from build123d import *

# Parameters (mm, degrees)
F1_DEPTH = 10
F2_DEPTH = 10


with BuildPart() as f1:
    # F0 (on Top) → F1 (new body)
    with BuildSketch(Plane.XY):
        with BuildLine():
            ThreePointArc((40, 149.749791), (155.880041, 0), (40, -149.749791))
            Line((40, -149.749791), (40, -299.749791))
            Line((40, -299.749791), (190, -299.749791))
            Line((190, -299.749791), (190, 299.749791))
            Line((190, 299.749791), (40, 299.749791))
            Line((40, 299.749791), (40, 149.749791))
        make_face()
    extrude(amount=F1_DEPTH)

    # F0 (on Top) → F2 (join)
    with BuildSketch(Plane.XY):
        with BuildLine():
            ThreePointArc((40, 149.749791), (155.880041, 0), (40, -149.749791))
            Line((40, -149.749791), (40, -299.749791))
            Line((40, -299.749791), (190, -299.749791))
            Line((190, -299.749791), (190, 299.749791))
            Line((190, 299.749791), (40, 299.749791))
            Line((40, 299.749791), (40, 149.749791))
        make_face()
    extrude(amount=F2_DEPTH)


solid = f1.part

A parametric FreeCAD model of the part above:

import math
import FreeCAD as App
import Part
import Sketcher
from FreeCAD import Vector

doc = App.newDocument("Part")
body = doc.addObject("PartDesign::Body", "Body")

# Sketch on XY plane
sketch1 = body.newObject("Sketcher::SketchObject", "Sketch")
sketch1.AttachmentSupport = (doc.getObject("XY_Plane"), [""])
sketch1.MapMode = "FlatFace"
sketch1.addGeometry([
    Part.ArcOfCircle(Part.Circle(Vector(1, 0, 0), Vector(0, 0, 1), 155), math.radians(-75), math.radians(75)),  # 0
    Part.LineSegment(Vector(40, -150, 0), Vector(40, -300, 0)),  # 1
    Part.LineSegment(Vector(40, -300, 0), Vector(190, -300, 0)),  # 2
    Part.LineSegment(Vector(190, -300, 0), Vector(190, 300, 0)),  # 3
    Part.LineSegment(Vector(190, 300, 0), Vector(40, 300, 0)),  # 4
    Part.LineSegment(Vector(40, 300, 0), Vector(40, 150, 0)),  # 5
], False)
sketch1.addConstraint([
    Sketcher.Constraint("Coincident", 0, 1, 1, 1),
    Sketcher.Constraint("Coincident", 1, 2, 2, 1),
    Sketcher.Constraint("Coincident", 2, 2, 3, 1),
    Sketcher.Constraint("Coincident", 3, 2, 4, 1),
    Sketcher.Constraint("Coincident", 4, 2, 5, 1),
    Sketcher.Constraint("Coincident", 5, 2, 0, 2),
    Sketcher.Constraint("Vertical", 1),
    Sketcher.Constraint("Horizontal", 2),
    Sketcher.Constraint("Vertical", 3),
    Sketcher.Constraint("Horizontal", 4),
    Sketcher.Constraint("Vertical", 5),
    Sketcher.Constraint("Symmetric", 1, 2, 4, 2, -1),
    Sketcher.Constraint("PointOnObject", 0, 3, -1),
    Sketcher.Constraint("Equal", 4, 1),
    Sketcher.Constraint("DistanceX", 2, 1, 2, 2, 150.0),
    Sketcher.Constraint("DistanceX", -1, 1, 0, 1, 40.0),
    Sketcher.Constraint("Radius", 0, 154.699565),
    Sketcher.Constraint("DistanceY", 3, 1, 3, 2, 599.499582),
])
pad1 = body.newObject("PartDesign::Pad", "Pad")
pad1.Profile = sketch1
pad1.Length = 10

# Sketch on XY plane
sketch2 = body.newObject("Sketcher::SketchObject", "Sketch001")
sketch2.AttachmentSupport = (doc.getObject("XY_Plane"), [""])
sketch2.MapMode = "FlatFace"
sketch2.addGeometry([
    Part.ArcOfCircle(Part.Circle(Vector(1, 0, 0), Vector(0, 0, 1), 155), math.radians(-75), math.radians(75)),  # 0
    Part.LineSegment(Vector(40, -150, 0), Vector(40, -300, 0)),  # 1
    Part.LineSegment(Vector(40, -300, 0), Vector(190, -300, 0)),  # 2
    Part.LineSegment(Vector(190, -300, 0), Vector(190, 300, 0)),  # 3
    Part.LineSegment(Vector(190, 300, 0), Vector(40, 300, 0)),  # 4
    Part.LineSegment(Vector(40, 300, 0), Vector(40, 150, 0)),  # 5
], False)
sketch2.addConstraint([
    Sketcher.Constraint("Coincident", 0, 1, 1, 1),
    Sketcher.Constraint("Coincident", 1, 2, 2, 1),
    Sketcher.Constraint("Coincident", 2, 2, 3, 1),
    Sketcher.Constraint("Coincident", 3, 2, 4, 1),
    Sketcher.Constraint("Coincident", 4, 2, 5, 1),
    Sketcher.Constraint("Coincident", 5, 2, 0, 2),
    Sketcher.Constraint("Vertical", 1),
    Sketcher.Constraint("Horizontal", 2),
    Sketcher.Constraint("Vertical", 3),
    Sketcher.Constraint("Horizontal", 4),
    Sketcher.Constraint("Vertical", 5),
    Sketcher.Constraint("Symmetric", 1, 2, 4, 2, -1),
    Sketcher.Constraint("PointOnObject", 0, 3, -1),
    Sketcher.Constraint("Equal", 4, 1),
    Sketcher.Constraint("DistanceX", 2, 1, 2, 2, 150.0),
    Sketcher.Constraint("DistanceX", -1, 1, 0, 1, 40.0),
    Sketcher.Constraint("Radius", 0, 154.699565),
    Sketcher.Constraint("DistanceY", 3, 1, 3, 2, 599.499582),
])
pad2 = body.newObject("PartDesign::Pad", "Pad001")
pad2.Profile = sketch2
pad2.Length = 10

doc.recompute()
